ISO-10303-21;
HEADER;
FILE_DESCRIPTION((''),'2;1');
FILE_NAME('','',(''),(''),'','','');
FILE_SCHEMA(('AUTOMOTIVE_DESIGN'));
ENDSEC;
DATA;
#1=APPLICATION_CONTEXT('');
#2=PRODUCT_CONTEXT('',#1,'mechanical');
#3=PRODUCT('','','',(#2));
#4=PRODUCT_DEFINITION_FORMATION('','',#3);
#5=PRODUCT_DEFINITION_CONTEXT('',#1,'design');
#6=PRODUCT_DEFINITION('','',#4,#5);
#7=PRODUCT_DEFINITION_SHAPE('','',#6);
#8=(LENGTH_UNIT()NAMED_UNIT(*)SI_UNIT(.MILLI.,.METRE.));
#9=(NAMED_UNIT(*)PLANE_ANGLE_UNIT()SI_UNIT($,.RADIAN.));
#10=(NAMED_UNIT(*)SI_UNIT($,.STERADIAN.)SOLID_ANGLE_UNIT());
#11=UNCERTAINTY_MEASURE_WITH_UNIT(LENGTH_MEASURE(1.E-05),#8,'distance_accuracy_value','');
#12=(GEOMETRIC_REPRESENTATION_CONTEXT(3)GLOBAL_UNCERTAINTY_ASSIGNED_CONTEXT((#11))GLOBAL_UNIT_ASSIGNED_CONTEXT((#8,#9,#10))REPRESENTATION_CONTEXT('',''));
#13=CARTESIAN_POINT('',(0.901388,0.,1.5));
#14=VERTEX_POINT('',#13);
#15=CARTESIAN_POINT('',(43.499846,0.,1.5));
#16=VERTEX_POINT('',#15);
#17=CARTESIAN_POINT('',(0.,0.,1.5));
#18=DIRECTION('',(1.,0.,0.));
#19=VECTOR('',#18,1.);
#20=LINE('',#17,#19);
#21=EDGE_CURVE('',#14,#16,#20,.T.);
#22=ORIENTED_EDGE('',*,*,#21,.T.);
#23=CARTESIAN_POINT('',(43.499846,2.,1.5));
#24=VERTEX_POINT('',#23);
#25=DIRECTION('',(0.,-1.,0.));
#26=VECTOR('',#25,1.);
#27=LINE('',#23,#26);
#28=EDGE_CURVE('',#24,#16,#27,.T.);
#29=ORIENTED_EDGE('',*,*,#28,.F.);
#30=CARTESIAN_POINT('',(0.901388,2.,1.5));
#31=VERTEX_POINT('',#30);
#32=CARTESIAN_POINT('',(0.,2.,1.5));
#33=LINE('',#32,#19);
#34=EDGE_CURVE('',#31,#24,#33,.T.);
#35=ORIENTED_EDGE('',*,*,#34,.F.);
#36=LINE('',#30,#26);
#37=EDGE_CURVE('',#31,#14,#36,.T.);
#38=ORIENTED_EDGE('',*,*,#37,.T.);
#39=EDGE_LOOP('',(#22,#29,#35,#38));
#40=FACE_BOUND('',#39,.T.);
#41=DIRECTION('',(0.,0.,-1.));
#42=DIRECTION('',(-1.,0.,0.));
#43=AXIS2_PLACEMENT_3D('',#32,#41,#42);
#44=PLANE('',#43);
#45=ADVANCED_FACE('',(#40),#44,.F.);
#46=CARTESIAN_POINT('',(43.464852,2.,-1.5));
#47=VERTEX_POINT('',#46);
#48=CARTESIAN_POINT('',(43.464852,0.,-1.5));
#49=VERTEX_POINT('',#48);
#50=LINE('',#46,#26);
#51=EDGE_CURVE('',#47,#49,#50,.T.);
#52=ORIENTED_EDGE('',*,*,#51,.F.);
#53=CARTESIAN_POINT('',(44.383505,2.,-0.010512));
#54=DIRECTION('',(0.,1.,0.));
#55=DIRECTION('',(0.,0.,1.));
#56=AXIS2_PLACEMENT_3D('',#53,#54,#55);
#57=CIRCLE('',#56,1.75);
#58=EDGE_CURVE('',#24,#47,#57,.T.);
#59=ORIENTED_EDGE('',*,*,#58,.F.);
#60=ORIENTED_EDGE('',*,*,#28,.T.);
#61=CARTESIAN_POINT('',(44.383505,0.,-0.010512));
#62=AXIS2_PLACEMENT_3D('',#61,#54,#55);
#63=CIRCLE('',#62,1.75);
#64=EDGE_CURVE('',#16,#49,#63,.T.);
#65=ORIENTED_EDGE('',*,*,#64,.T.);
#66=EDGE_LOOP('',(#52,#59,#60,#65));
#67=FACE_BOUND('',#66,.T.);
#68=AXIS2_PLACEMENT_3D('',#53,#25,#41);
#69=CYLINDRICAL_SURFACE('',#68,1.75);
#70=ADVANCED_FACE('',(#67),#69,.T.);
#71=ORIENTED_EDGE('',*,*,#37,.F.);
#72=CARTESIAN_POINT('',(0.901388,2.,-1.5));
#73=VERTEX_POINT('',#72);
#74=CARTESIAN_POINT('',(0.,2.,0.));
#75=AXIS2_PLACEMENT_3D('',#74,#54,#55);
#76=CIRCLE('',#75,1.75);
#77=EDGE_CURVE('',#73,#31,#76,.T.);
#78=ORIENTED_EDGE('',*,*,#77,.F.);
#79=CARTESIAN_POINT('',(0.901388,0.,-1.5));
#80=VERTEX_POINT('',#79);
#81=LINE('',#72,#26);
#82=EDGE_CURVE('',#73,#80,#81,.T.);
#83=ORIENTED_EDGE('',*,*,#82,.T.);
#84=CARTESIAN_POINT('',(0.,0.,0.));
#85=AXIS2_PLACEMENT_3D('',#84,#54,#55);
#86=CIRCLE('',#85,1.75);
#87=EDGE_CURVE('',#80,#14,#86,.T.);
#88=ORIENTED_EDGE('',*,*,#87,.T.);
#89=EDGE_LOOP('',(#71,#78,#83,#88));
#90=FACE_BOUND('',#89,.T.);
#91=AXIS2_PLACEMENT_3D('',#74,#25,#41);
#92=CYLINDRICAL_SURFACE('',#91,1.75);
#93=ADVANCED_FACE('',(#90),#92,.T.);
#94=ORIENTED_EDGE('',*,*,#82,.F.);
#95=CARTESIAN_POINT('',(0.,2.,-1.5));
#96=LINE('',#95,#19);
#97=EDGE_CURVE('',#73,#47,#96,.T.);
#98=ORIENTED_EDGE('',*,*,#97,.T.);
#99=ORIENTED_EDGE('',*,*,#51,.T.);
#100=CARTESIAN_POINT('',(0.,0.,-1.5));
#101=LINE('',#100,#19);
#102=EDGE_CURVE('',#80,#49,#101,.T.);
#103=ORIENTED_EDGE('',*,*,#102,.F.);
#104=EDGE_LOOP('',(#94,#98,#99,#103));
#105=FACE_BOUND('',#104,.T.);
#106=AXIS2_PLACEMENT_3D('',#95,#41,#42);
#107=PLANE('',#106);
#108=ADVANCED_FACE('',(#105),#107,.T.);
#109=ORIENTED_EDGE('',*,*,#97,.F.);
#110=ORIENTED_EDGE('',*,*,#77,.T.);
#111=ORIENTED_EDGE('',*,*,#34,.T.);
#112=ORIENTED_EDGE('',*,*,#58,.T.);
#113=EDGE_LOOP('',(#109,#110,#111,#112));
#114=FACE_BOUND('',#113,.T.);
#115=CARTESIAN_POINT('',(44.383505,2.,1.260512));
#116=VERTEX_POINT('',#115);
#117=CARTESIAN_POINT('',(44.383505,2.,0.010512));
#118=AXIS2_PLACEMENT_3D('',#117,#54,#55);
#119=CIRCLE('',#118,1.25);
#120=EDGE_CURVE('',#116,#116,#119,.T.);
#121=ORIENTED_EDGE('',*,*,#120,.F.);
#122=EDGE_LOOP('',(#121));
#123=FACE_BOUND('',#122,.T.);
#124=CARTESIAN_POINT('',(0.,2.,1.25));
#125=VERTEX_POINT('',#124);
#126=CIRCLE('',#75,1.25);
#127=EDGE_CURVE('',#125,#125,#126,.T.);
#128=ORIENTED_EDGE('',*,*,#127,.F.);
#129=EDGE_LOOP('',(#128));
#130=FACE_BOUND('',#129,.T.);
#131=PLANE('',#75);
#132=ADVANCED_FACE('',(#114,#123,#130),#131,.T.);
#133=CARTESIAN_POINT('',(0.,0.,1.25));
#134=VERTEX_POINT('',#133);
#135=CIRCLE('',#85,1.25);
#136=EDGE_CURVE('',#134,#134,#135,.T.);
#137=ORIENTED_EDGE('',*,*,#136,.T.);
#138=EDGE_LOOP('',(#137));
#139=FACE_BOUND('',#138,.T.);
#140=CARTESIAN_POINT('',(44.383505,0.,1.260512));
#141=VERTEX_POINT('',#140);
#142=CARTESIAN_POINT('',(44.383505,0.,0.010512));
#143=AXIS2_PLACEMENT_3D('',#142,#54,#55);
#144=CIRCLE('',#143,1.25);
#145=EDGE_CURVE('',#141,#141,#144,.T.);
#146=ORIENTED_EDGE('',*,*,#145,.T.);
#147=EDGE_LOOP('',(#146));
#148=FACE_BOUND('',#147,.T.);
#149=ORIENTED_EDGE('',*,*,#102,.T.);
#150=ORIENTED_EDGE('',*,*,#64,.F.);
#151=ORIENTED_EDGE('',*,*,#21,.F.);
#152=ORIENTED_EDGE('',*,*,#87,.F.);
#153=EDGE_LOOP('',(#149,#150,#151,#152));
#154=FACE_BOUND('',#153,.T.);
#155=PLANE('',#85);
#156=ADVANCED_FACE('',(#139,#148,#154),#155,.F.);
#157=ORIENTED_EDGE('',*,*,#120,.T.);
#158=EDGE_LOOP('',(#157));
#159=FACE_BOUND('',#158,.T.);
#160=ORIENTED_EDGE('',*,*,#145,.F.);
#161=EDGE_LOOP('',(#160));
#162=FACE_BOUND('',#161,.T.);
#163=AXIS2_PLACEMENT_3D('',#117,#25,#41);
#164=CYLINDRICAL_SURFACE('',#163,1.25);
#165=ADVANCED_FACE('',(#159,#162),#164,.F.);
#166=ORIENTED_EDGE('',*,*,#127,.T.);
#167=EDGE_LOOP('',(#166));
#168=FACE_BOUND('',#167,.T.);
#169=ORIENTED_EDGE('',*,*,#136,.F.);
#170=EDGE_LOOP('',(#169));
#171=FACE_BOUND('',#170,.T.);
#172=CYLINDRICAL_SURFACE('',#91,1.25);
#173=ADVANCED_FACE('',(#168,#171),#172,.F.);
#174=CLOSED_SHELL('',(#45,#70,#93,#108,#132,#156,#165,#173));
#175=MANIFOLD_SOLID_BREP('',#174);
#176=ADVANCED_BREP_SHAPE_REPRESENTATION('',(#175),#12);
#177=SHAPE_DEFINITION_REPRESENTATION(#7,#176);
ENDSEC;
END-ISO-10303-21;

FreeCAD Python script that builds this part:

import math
import FreeCAD as App
import Part
import Sketcher
from FreeCAD import Vector
Q = App.Units.Quantity

doc = App.newDocument("Part")
body = doc.addObject("PartDesign::Body", "Body")

# Sketch on XZ plane
sketch1 = doc.addObject("Sketcher::SketchObject", "Sketch")
body.addObject(sketch1)
sketch1.AttachmentSupport = (doc.XZ_Plane, [""])
sketch1.MapMode = "FlatFace"
sketch1.addGeometry(Part.ArcOfCircle(Part.Circle(Vector(0, 0, 0), Vector(0, 0, 1), 1.8), math.radians(90), math.radians(270)), False)
sketch1.addGeometry(Part.ArcOfCircle(Part.Circle(Vector(0, 0, 0), Vector(0, 0, 1), 1.8), math.radians(59), math.radians(90)), False)
sketch1.addGeometry(Part.LineSegment(Vector(0.9, 1.5, 0), Vector(43.5, 1.5, 0)), False)
sketch1.addGeometry(Part.ArcOfCircle(Part.Circle(Vector(44.4, 0, 0), Vector(0, 0, 1), 1.8), math.radians(90), math.radians(120)), False)
sketch1.addGeometry(Part.ArcOfCircle(Part.Circle(Vector(44.4, 0, 0), Vector(0, 0, 1), 1.8), math.radians(0), math.radians(90)), False)
sketch1.addGeometry(Part.ArcOfCircle(Part.Circle(Vector(44.4, 0, 0), Vector(0, 0, 1), 1.8), math.radians(-90), math.radians(0)), False)
sketch1.addGeometry(Part.ArcOfCircle(Part.Circle(Vector(44.4, 0, 0), Vector(0, 0, 1), 1.7), math.radians(-122), math.radians(-90)), False)
sketch1.addGeometry(Part.LineSegment(Vector(43.5, -1.5, 0), Vector(0.9, -1.5, 0)), False)
sketch1.addGeometry(Part.ArcOfCircle(Part.Circle(Vector(0, 0, 0), Vector(0, 0, 1), 1.8), math.radians(-90), math.radians(-59)), False)
sketch1.addGeometry(Part.ArcOfCircle(Part.Circle(Vector(0, 0, 0), Vector(0, 0, 1), 1.3), math.radians(-90), math.radians(0)), False)
sketch1.addGeometry(Part.ArcOfCircle(Part.Circle(Vector(0, 0, 0), Vector(0, 0, 1), 1.3), math.radians(0), math.radians(90)), False)
sketch1.addGeometry(Part.ArcOfCircle(Part.Circle(Vector(0, 0, 0), Vector(0, 0, 1), 1.2), math.radians(90), math.radians(270)), False)
sketch1.addGeometry(Part.ArcOfCircle(Part.Circle(Vector(44.4, 0, 0), Vector(0, 0, 1), 1.2), math.radians(90), math.radians(270)), False)
sketch1.addGeometry(Part.ArcOfCircle(Part.Circle(Vector(44.4, 0, 0), Vector(0, 0, 1), 1.2), math.radians(-90), math.radians(0)), False)
sketch1.addGeometry(Part.ArcOfCircle(Part.Circle(Vector(44.4, 0, 0), Vector(0, 0, 1), 1.2), math.radians(0), math.radians(90)), False)
sketch1.addConstraint(Sketcher.Constraint("Tangent", 0, 1, 1, 2))
sketch1.addConstraint(Sketcher.Constraint("Coincident", 1, 1, 2, 1))
sketch1.addConstraint(Sketcher.Constraint("Coincident", 2, 2, 3, 2))
sketch1.addConstraint(Sketcher.Constraint("Tangent", 3, 1, 4, 2))
sketch1.addConstraint(Sketcher.Constraint("Tangent", 4, 1, 5, 2))
sketch1.addConstraint(Sketcher.Constraint("Tangent", 5, 1, 6, 2))
sketch1.addConstraint(Sketcher.Constraint("Coincident", 6, 1, 7, 1))
sketch1.addConstraint(Sketcher.Constraint("Coincident", 7, 2, 8, 2))
sketch1.addConstraint(Sketcher.Constraint("Tangent", 8, 1, 0, 2))
sketch1.addConstraint(Sketcher.Constraint("Tangent", 9, 2, 10, 1))
sketch1.addConstraint(Sketcher.Constraint("Tangent", 10, 2, 11, 1))
sketch1.addConstraint(Sketcher.Constraint("Tangent", 11, 2, 9, 1))
sketch1.addConstraint(Sketcher.Constraint("Tangent", 12, 2, 13, 1))
sketch1.addConstraint(Sketcher.Constraint("Tangent", 13, 2, 14, 1))
sketch1.addConstraint(Sketcher.Constraint("Tangent", 14, 2, 12, 1))
sketch1.addConstraint(Sketcher.Constraint("Horizontal", 2))
sketch1.addConstraint(Sketcher.Constraint("Horizontal", 7))
sketch1.addConstraint(Sketcher.Constraint("Coincident", 0, 3, -1, 1))
sketch1.addConstraint(Sketcher.Constraint("Coincident", 9, 3, -1, 1))
sketch1.addConstraint(Sketcher.Constraint("Coincident", 5, 3, 3, 3))
sketch1.addConstraint(Sketcher.Constraint("Equal", 0, 1))
sketch1.addConstraint(Sketcher.Constraint("Equal", 1, 3))
sketch1.addConstraint(Sketcher.Constraint("Equal", 5, 6))
sketch1.addConstraint(Sketcher.Constraint("Equal", 6, 8))
sketch1.addConstraint(Sketcher.Constraint("Equal", 11, 12))
sketch1.addConstraint(Sketcher.Constraint("Symmetric", 3, 3, 12, 3, -1))
sketch1.addConstraint(Sketcher.Constraint("PointOnObject", 0, 1, -2))
sketch1.addConstraint(Sketcher.Constraint("PointOnObject", 8, 1, -2))
sketch1.addConstraint(Sketcher.Constraint("PointOnObject", 9, 2, -1))
sketch1.addConstraint(Sketcher.Constraint("PointOnObject", 10, 2, -2))
sketch1.addConstraint(Sketcher.Constraint("PointOnObject", 11, 2, -2))
sketch1.addConstraint(Sketcher.Constraint("Horizontal", 6, 3, 4, 1))
sketch1.addConstraint(Sketcher.Constraint("Horizontal", 14, 3, 13, 2))
sketch1.addConstraint(Sketcher.Constraint("Vertical", 14, 3, 3, 1))
sketch1.addConstraint(Sketcher.Constraint("Vertical", 3, 1, 5, 1))
sketch1.addConstraint(Sketcher.Constraint("Vertical", 1, 1, 7, 2))
sketch1.addConstraint(Sketcher.Constraint("Vertical", 5, 1, 12, 2))
sketch1.addConstraint(Sketcher.Constraint("Vertical", 12, 2, 14, 2))
sketch1.addConstraint(Sketcher.Constraint("Radius", 0, Q("1.75 mm")))
sketch1.addConstraint(Sketcher.Constraint("Radius", 9, Q("1.25 mm")))
sketch1.addConstraint(Sketcher.Constraint("DistanceY", -1, 1, 1, 1, Q("1.5 mm")))
sketch1.addConstraint(Sketcher.Constraint("DistanceX", 2, 1, 2, 2, Q("42.598458 mm")))
sketch1.addConstraint(Sketcher.Constraint("DistanceX", 7, 2, 7, 1, Q("42.563464 mm")))
pad1 = doc.addObject("PartDesign::Pad", "Pad")
body.addObject(pad1)
pad1.Profile = sketch1
pad1.Length = 2
pad1.Reversed = True

doc.recompute()
